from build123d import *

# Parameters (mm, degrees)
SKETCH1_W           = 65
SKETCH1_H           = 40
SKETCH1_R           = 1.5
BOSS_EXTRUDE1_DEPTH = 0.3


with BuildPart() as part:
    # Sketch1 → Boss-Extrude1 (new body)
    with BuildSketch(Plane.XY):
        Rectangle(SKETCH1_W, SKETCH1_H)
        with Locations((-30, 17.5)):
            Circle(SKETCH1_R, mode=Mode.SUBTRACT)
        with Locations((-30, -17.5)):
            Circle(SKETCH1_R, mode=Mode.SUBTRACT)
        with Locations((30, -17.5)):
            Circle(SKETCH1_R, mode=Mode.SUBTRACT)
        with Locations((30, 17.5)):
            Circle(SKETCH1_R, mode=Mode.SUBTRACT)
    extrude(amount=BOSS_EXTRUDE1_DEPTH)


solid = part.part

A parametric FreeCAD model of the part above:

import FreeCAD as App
import Part
import Sketcher

V = App.Vector
Q = App.Units.Quantity

doc = App.newDocument("Part")
body = doc.addObject("PartDesign::Body", "Body")

# Sketch on XY plane
sketch1 = body.newObject("Sketcher::SketchObject", "Sketch")
sketch1.AttachmentSupport = (doc.getObject("XY_Plane"), [""])
sketch1.MapMode = "FlatFace"
sketch1.addGeometry([
    Part.LineSegment(V(-32.5, 20, 0), V(-32.5, -20, 0)),  # 0
    Part.LineSegment(V(-32.5, -20, 0), V(32.5, -20, 0)),  # 1
    Part.LineSegment(V(32.5, -20, 0), V(32.5, 20, 0)),  # 2
    Part.LineSegment(V(32.5, 20, 0), V(-32.5, 20, 0)),  # 3
    Part.Circle(V(-30, -17.5, 0), V(0, 0, 1), 1.5),  # 4
    Part.Circle(V(30, -17.5, 0), V(0, 0, 1), 1.5),  # 5
    Part.Circle(V(-30, 17.5, 0), V(0, 0, 1), 1.5),  # 6
    Part.Circle(V(30, 17.5, 0), V(0, 0, 1), 1.5),  # 7
], False)
sketch1.addConstraint([
    Sketcher.Constraint("Coincident", 0, 2, 1, 1),
    Sketcher.Constraint("Coincident", 1, 2, 2, 1),
    Sketcher.Constraint("Coincident", 2, 2, 3, 1),
    Sketcher.Constraint("Coincident", 3, 2, 0, 1),
    Sketcher.Constraint("Vertical", 0),
    Sketcher.Constraint("Horizontal", 1),
    Sketcher.Constraint("Vertical", 2),
    Sketcher.Constraint("Horizontal", 3),
    Sketcher.Constraint("Equal", 4, 5),
    Sketcher.Constraint("Equal", 5, 6),
    Sketcher.Constraint("Equal", 6, 7),
    Sketcher.Constraint("Symmetric", 5, 3, 6, 3, -1, 1),
    Sketcher.Constraint("Symmetric", 4, 3, 7, 3, -1, 1),
    Sketcher.Constraint("Symmetric", 0, 2, 2, 2, -1, 1),
    Sketcher.Constraint("Symmetric", 4, 3, 5, 3, -2),
    Sketcher.Constraint("Diameter", 4, Q("3 mm")),
    Sketcher.Constraint("DistanceX", 1, 1, 1, 2, Q("65 mm")),
    Sketcher.Constraint("DistanceY", 0, 2, 0, 1, Q("40 mm")),
    Sketcher.Constraint("DistanceX", 4, 3, -1, 1, Q("30 mm")),
    Sketcher.Constraint("DistanceY", 4, 3, 6, 3, Q("35 mm")),
])
pad1 = body.newObject("PartDesign::Pad", "Pad")
pad1.Profile = sketch1
pad1.Length = 0.3

doc.recompute()
